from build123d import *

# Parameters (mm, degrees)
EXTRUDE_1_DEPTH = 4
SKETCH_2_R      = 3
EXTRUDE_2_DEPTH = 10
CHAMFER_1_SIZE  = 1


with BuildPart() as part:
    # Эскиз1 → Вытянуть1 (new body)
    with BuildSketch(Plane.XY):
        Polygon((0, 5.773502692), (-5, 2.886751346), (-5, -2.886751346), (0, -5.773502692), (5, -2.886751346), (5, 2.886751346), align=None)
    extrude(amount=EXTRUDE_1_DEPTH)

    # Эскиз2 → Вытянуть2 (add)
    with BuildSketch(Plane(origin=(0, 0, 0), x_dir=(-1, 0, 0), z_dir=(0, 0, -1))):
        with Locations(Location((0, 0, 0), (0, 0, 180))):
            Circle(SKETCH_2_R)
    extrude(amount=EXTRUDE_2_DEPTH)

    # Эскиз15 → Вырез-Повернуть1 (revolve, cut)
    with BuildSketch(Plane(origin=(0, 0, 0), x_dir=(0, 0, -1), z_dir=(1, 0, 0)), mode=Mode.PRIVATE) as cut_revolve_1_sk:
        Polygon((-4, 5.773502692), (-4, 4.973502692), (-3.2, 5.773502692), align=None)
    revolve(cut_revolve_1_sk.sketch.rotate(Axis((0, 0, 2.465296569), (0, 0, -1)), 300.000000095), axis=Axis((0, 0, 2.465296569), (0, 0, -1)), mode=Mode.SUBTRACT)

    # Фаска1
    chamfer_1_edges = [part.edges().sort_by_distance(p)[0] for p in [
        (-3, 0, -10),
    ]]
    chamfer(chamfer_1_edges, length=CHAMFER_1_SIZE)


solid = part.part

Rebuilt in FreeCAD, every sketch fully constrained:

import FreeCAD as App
import Part
import Sketcher

V = App.Vector
Q = App.Units.Quantity


def edges_at(feature, points):
    """Names of the edges that pass closest to the given points."""
    edges = feature.Shape.Edges
    near = lambda p: min(range(len(edges)), key=lambda i: edges[i].distToShape(Part.Vertex(*p))[0])
    return sorted({f"Edge{near(p) + 1}" for p in points})

doc = App.newDocument("Part")
body = doc.addObject("PartDesign::Body", "Body")

sketch1 = body.newObject("Sketcher::SketchObject", "Sketch")
sketch1.AttachmentSupport = (doc.getObject("XY_Plane"), [""])
sketch1.MapMode = "FlatFace"
sketch1.addGeometry(Part.LineSegment(V(0, 6, 0), V(-5, 3, 0)), False)
sketch1.addGeometry(Part.LineSegment(V(-5, 3, 0), V(-5, -3, 0)), False)
sketch1.addGeometry(Part.LineSegment(V(-5, -3, 0), V(0, -6, 0)), False)
sketch1.addGeometry(Part.LineSegment(V(0, -6, 0), V(5, -3, 0)), False)
sketch1.addGeometry(Part.LineSegment(V(5, -3, 0), V(5, 3, 0)), False)
sketch1.addGeometry(Part.LineSegment(V(5, 3, 0), V(0, 6, 0)), False)
sketch1.addConstraint(Sketcher.Constraint("Coincident", 0, 2, 1, 1))
sketch1.addConstraint(Sketcher.Constraint("Coincident", 1, 2, 2, 1))
sketch1.addConstraint(Sketcher.Constraint("Coincident", 2, 2, 3, 1))
sketch1.addConstraint(Sketcher.Constraint("Coincident", 3, 2, 4, 1))
sketch1.addConstraint(Sketcher.Constraint("Coincident", 4, 2, 5, 1))
sketch1.addConstraint(Sketcher.Constraint("Coincident", 5, 2, 0, 1))
sketch1.addConstraint(Sketcher.Constraint("Vertical", 1))
sketch1.addConstraint(Sketcher.Constraint("Vertical", 4))
sketch1.addConstraint(Sketcher.Constraint("Symmetric", 0, 2, 3, 2, -1, 1))
sketch1.addConstraint(Sketcher.Constraint("Symmetric", 2, 2, 5, 2, -1, 1))
sketch1.addConstraint(Sketcher.Constraint("PointOnObject", 2, 2, -2))
sketch1.addConstraint(Sketcher.Constraint("Parallel", 2, 5))
sketch1.addConstraint(Sketcher.Constraint("Horizontal", 1, 2, 3, 2))
sketch1.addConstraint(Sketcher.Constraint("Angle", 0, Q("-150 deg")))
sketch1.addConstraint(Sketcher.Constraint("DistanceX", 0, 2, -1, 1, Q("5 mm")))
sketch1.addConstraint(Sketcher.Constraint("DistanceY", 1, 2, 1, 1, Q("5.773503 mm")))
pad1 = body.newObject("PartDesign::Pad", "Pad")
pad1.Profile = sketch1
pad1.Length = 4

sketch2 = body.newObject("Sketcher::SketchObject", "Sketch001")
sketch2.AttachmentSupport = (doc.getObject("XY_Plane"), [""])
sketch2.MapMode = "FlatFace"
sketch2.addGeometry(Part.Circle(V(0, 0, 0), V(0, 0, 1), 3), False)
sketch2.addConstraint(Sketcher.Constraint("Coincident", 0, 3, -1, 1))
sketch2.addConstraint(Sketcher.Constraint("Diameter", 0, Q("6 mm")))
pad2 = body.newObject("PartDesign::Pad", "Pad001")
pad2.Profile = sketch2
pad2.Length = 10
pad2.Reversed = True

sketch3 = body.newObject("Sketcher::SketchObject", "Sketch002")
sketch3.AttachmentSupport = (doc.getObject("YZ_Plane"), [""])
sketch3.MapMode = "FlatFace"
sketch3.addGeometry(Part.LineSegment(V(5.8, 4, 0), V(5, 4, 0)), False)
sketch3.addGeometry(Part.LineSegment(V(5, 4, 0), V(5.8, 3.2, 0)), False)
sketch3.addGeometry(Part.LineSegment(V(5.8, 3.2, 0), V(5.8, 4, 0)), False)
sketch3.addConstraint(Sketcher.Constraint("Coincident", 0, 2, 1, 1))
sketch3.addConstraint(Sketcher.Constraint("Coincident", 1, 2, 2, 1))
sketch3.addConstraint(Sketcher.Constraint("Coincident", 2, 2, 0, 1))
sketch3.addConstraint(Sketcher.Constraint("Horizontal", 0))
sketch3.addConstraint(Sketcher.Constraint("Vertical", 2))
sketch3.addConstraint(Sketcher.Constraint("Equal", 0, 2))
sketch3.addConstraint(Sketcher.Constraint("DistanceX", 0, 2, 0, 1, Q("0.8 mm")))
sketch3.addConstraint(Sketcher.Constraint("DistanceY", -1, 1, 0, 2, Q("4 mm")))
sketch3.addConstraint(Sketcher.Constraint("DistanceX", -1, 1, 0, 2, Q("4.973503 mm")))
groove = body.newObject("PartDesign::Groove", "Groove")
groove.Profile = sketch3
groove.ReferenceAxis = (sketch3, ["V_Axis"])
groove.Angle = 360
doc.recompute()

chamfer = body.newObject("PartDesign::Chamfer", "Chamfer")
chamfer.Base = (groove, edges_at(groove, [(-3, 0, -10)]))
chamfer.Size = 1

doc.recompute()
